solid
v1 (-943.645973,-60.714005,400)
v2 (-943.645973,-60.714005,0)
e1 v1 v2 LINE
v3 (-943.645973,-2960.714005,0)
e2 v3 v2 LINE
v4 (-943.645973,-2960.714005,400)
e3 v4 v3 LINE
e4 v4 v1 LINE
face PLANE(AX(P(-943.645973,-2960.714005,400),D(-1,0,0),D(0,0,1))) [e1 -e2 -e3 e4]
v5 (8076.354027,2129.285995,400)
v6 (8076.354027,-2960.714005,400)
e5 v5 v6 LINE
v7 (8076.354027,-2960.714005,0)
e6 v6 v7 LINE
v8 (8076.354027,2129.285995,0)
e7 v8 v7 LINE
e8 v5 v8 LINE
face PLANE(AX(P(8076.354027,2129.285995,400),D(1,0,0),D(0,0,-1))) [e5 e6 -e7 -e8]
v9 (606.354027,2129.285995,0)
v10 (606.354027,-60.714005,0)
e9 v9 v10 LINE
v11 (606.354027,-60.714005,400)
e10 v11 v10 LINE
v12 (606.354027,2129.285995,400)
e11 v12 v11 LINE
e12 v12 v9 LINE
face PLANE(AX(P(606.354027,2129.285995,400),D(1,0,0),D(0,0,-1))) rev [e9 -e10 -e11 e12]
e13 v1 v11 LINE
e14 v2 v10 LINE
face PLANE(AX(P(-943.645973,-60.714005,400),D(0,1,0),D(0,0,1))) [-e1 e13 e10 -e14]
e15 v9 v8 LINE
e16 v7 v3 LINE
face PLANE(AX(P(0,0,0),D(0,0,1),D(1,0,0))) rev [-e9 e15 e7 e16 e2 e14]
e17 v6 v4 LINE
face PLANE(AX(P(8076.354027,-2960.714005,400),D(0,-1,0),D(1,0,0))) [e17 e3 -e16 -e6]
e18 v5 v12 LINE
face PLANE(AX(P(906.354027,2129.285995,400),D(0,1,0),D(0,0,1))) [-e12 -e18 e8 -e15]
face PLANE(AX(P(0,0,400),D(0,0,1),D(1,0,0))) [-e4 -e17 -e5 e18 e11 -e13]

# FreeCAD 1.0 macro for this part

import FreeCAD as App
import Part
import Sketcher

V = App.Vector


def add_polygon(sketch, points):
    """Adds a closed chain of lines whose ends are joined by coincident constraints."""
    first, n = sketch.GeometryCount, len(points)
    for a, b in zip(points, points[1:] + points[:1]):
        sketch.addGeometry(Part.LineSegment(App.Vector(*a, 0), App.Vector(*b, 0)), False)
    for i in range(n):
        sketch.addConstraint(Sketcher.Constraint("Coincident", first + i, 2, first + (i + 1) % n, 1))

doc = App.newDocument("Part")
body = doc.addObject("PartDesign::Body", "Body")

sketch1 = body.newObject("Sketcher::SketchObject", "Sketch")
sketch1.AttachmentSupport = (doc.getObject("XY_Plane"), [""])
sketch1.MapMode = "FlatFace"
add_polygon(sketch1, [(8076.354027, 2129.285995), (606.354027, 2129.285995), (606.354027, -60.714005), (-943.645973, -60.714005), (-943.645973, -2960.714005), (8076.354027, -2960.714005)])
sketch1.addConstraint([
    Sketcher.Constraint("Horizontal", 0),
    Sketcher.Constraint("Vertical", 1),
    Sketcher.Constraint("Horizontal", 2),
    Sketcher.Constraint("Vertical", 3),
    Sketcher.Constraint("Horizontal", 4),
    Sketcher.Constraint("Vertical", 5),
    Sketcher.Constraint("DistanceX", 0, 2, 0, 1, 7470.0),
    Sketcher.Constraint("DistanceX", 2, 2, 2, 1, 1550.0),
    Sketcher.Constraint("DistanceY", 1, 2, 1, 1, 2190.0),
    Sketcher.Constraint("DistanceY", 3, 2, 3, 1, 2900.0),
    Sketcher.Constraint("DistanceX", -1, 1, 0, 2, 606.354027),
    Sketcher.Constraint("DistanceY", -1, 1, 0, 2, 2129.285995),
])
pad1 = body.newObject("PartDesign::Pad", "Pad")
pad1.Profile = sketch1
pad1.Length = 400

doc.recompute()
